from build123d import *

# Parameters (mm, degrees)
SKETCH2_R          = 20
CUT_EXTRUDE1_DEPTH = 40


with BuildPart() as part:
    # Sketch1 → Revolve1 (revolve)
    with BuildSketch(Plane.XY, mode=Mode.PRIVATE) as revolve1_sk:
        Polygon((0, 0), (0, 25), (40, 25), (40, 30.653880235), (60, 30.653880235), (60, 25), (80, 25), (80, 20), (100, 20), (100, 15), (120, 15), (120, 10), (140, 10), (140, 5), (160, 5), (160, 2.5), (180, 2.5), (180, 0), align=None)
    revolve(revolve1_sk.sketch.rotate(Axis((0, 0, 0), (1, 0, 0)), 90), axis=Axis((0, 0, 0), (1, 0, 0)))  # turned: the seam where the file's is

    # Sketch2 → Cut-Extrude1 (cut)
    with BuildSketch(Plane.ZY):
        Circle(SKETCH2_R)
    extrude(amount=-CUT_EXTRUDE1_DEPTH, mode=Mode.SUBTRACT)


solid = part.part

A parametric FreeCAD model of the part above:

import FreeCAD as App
import Part
import Sketcher
from FreeCAD import Vector


def add_polygon(sketch, points):
    """Adds a closed chain of lines whose ends are joined by coincident constraints."""
    first, n = sketch.GeometryCount, len(points)
    for a, b in zip(points, points[1:] + points[:1]):
        sketch.addGeometry(Part.LineSegment(App.Vector(*a, 0), App.Vector(*b, 0)), False)
    for i in range(n):
        sketch.addConstraint(Sketcher.Constraint("Coincident", first + i, 2, first + (i + 1) % n, 1))

doc = App.newDocument("Part")
body = doc.addObject("PartDesign::Body", "Body")

# Sketch on XY plane
sketch1 = body.newObject("Sketcher::SketchObject", "Sketch")
sketch1.AttachmentSupport = (doc.getObject("XY_Plane"), [""])
sketch1.MapMode = "FlatFace"
add_polygon(sketch1, [(0, 25), (0, 0), (180, 0), (180, 2.5), (160, 2.5), (160, 5), (140, 5), (140, 10), (120, 10), (120, 15), (100, 15), (100, 20), (80, 20), (80, 25), (60, 25), (60, 30.7), (40, 30.7), (40, 25)])  # lines 0-17
sketch1.addConstraint([
    Sketcher.Constraint("Vertical", 0),
    Sketcher.Constraint("Horizontal", 1),
    Sketcher.Constraint("Vertical", 2),
    Sketcher.Constraint("Horizontal", 3),
    Sketcher.Constraint("Vertical", 4),
    Sketcher.Constraint("Horizontal", 5),
    Sketcher.Constraint("Vertical", 6),
    Sketcher.Constraint("Horizontal", 7),
    Sketcher.Constraint("Vertical", 8),
    Sketcher.Constraint("Horizontal", 9),
    Sketcher.Constraint("Vertical", 10),
    Sketcher.Constraint("Horizontal", 11),
    Sketcher.Constraint("Vertical", 12),
    Sketcher.Constraint("Horizontal", 13),
    Sketcher.Constraint("Vertical", 14),
    Sketcher.Constraint("Horizontal", 15),
    Sketcher.Constraint("Vertical", 16),
    Sketcher.Constraint("Horizontal", 17),
    Sketcher.Constraint("Coincident", 0, 2, -1, 1),
    Sketcher.Constraint("Horizontal", 13, 2, 16, 2),
    Sketcher.Constraint("Equal", 3, 5),
    Sketcher.Constraint("Equal", 5, 7),
    Sketcher.Constraint("Equal", 7, 9),
    Sketcher.Constraint("Equal", 9, 11),
    Sketcher.Constraint("Equal", 11, 13),
    Sketcher.Constraint("Equal", 13, 15),
    Sketcher.Constraint("Equal", 2, 4),
    Sketcher.Constraint("Equal", 6, 8),
    Sketcher.Constraint("Equal", 8, 10),
    Sketcher.Constraint("Equal", 10, 12),
    Sketcher.Constraint("DistanceX", 1, 1, 1, 2, 180.0),
    Sketcher.Constraint("DistanceX", 3, 2, 3, 1, 20.0),
    Sketcher.Constraint("DistanceY", 0, 2, 0, 1, 25.0),
    Sketcher.Constraint("DistanceY", 6, 1, 6, 2, 5.0),
    Sketcher.Constraint("DistanceY", 14, 1, 14, 2, 5.65388),
])
revolution = body.newObject("PartDesign::Revolution", "Revolution")
revolution.Profile = sketch1
revolution.ReferenceAxis = (sketch1, ["H_Axis"])
revolution.Angle = 360

# Sketch on YZ plane
sketch2 = body.newObject("Sketcher::SketchObject", "Sketch001")
sketch2.AttachmentSupport = (doc.getObject("YZ_Plane"), [""])
sketch2.MapMode = "FlatFace"
sketch2.addGeometry(Part.Circle(Vector(0, 0, 0), Vector(0, 0, 1), 20), False)
sketch2.addConstraint([
    Sketcher.Constraint("Coincident", 0, 3, -1, 1),
    Sketcher.Constraint("Diameter", 0, 40.0),
])
pocket1 = body.newObject("PartDesign::Pocket", "Pocket")
pocket1.Profile = sketch2
pocket1.Length = 40
pocket1.Reversed = True

doc.recompute()
